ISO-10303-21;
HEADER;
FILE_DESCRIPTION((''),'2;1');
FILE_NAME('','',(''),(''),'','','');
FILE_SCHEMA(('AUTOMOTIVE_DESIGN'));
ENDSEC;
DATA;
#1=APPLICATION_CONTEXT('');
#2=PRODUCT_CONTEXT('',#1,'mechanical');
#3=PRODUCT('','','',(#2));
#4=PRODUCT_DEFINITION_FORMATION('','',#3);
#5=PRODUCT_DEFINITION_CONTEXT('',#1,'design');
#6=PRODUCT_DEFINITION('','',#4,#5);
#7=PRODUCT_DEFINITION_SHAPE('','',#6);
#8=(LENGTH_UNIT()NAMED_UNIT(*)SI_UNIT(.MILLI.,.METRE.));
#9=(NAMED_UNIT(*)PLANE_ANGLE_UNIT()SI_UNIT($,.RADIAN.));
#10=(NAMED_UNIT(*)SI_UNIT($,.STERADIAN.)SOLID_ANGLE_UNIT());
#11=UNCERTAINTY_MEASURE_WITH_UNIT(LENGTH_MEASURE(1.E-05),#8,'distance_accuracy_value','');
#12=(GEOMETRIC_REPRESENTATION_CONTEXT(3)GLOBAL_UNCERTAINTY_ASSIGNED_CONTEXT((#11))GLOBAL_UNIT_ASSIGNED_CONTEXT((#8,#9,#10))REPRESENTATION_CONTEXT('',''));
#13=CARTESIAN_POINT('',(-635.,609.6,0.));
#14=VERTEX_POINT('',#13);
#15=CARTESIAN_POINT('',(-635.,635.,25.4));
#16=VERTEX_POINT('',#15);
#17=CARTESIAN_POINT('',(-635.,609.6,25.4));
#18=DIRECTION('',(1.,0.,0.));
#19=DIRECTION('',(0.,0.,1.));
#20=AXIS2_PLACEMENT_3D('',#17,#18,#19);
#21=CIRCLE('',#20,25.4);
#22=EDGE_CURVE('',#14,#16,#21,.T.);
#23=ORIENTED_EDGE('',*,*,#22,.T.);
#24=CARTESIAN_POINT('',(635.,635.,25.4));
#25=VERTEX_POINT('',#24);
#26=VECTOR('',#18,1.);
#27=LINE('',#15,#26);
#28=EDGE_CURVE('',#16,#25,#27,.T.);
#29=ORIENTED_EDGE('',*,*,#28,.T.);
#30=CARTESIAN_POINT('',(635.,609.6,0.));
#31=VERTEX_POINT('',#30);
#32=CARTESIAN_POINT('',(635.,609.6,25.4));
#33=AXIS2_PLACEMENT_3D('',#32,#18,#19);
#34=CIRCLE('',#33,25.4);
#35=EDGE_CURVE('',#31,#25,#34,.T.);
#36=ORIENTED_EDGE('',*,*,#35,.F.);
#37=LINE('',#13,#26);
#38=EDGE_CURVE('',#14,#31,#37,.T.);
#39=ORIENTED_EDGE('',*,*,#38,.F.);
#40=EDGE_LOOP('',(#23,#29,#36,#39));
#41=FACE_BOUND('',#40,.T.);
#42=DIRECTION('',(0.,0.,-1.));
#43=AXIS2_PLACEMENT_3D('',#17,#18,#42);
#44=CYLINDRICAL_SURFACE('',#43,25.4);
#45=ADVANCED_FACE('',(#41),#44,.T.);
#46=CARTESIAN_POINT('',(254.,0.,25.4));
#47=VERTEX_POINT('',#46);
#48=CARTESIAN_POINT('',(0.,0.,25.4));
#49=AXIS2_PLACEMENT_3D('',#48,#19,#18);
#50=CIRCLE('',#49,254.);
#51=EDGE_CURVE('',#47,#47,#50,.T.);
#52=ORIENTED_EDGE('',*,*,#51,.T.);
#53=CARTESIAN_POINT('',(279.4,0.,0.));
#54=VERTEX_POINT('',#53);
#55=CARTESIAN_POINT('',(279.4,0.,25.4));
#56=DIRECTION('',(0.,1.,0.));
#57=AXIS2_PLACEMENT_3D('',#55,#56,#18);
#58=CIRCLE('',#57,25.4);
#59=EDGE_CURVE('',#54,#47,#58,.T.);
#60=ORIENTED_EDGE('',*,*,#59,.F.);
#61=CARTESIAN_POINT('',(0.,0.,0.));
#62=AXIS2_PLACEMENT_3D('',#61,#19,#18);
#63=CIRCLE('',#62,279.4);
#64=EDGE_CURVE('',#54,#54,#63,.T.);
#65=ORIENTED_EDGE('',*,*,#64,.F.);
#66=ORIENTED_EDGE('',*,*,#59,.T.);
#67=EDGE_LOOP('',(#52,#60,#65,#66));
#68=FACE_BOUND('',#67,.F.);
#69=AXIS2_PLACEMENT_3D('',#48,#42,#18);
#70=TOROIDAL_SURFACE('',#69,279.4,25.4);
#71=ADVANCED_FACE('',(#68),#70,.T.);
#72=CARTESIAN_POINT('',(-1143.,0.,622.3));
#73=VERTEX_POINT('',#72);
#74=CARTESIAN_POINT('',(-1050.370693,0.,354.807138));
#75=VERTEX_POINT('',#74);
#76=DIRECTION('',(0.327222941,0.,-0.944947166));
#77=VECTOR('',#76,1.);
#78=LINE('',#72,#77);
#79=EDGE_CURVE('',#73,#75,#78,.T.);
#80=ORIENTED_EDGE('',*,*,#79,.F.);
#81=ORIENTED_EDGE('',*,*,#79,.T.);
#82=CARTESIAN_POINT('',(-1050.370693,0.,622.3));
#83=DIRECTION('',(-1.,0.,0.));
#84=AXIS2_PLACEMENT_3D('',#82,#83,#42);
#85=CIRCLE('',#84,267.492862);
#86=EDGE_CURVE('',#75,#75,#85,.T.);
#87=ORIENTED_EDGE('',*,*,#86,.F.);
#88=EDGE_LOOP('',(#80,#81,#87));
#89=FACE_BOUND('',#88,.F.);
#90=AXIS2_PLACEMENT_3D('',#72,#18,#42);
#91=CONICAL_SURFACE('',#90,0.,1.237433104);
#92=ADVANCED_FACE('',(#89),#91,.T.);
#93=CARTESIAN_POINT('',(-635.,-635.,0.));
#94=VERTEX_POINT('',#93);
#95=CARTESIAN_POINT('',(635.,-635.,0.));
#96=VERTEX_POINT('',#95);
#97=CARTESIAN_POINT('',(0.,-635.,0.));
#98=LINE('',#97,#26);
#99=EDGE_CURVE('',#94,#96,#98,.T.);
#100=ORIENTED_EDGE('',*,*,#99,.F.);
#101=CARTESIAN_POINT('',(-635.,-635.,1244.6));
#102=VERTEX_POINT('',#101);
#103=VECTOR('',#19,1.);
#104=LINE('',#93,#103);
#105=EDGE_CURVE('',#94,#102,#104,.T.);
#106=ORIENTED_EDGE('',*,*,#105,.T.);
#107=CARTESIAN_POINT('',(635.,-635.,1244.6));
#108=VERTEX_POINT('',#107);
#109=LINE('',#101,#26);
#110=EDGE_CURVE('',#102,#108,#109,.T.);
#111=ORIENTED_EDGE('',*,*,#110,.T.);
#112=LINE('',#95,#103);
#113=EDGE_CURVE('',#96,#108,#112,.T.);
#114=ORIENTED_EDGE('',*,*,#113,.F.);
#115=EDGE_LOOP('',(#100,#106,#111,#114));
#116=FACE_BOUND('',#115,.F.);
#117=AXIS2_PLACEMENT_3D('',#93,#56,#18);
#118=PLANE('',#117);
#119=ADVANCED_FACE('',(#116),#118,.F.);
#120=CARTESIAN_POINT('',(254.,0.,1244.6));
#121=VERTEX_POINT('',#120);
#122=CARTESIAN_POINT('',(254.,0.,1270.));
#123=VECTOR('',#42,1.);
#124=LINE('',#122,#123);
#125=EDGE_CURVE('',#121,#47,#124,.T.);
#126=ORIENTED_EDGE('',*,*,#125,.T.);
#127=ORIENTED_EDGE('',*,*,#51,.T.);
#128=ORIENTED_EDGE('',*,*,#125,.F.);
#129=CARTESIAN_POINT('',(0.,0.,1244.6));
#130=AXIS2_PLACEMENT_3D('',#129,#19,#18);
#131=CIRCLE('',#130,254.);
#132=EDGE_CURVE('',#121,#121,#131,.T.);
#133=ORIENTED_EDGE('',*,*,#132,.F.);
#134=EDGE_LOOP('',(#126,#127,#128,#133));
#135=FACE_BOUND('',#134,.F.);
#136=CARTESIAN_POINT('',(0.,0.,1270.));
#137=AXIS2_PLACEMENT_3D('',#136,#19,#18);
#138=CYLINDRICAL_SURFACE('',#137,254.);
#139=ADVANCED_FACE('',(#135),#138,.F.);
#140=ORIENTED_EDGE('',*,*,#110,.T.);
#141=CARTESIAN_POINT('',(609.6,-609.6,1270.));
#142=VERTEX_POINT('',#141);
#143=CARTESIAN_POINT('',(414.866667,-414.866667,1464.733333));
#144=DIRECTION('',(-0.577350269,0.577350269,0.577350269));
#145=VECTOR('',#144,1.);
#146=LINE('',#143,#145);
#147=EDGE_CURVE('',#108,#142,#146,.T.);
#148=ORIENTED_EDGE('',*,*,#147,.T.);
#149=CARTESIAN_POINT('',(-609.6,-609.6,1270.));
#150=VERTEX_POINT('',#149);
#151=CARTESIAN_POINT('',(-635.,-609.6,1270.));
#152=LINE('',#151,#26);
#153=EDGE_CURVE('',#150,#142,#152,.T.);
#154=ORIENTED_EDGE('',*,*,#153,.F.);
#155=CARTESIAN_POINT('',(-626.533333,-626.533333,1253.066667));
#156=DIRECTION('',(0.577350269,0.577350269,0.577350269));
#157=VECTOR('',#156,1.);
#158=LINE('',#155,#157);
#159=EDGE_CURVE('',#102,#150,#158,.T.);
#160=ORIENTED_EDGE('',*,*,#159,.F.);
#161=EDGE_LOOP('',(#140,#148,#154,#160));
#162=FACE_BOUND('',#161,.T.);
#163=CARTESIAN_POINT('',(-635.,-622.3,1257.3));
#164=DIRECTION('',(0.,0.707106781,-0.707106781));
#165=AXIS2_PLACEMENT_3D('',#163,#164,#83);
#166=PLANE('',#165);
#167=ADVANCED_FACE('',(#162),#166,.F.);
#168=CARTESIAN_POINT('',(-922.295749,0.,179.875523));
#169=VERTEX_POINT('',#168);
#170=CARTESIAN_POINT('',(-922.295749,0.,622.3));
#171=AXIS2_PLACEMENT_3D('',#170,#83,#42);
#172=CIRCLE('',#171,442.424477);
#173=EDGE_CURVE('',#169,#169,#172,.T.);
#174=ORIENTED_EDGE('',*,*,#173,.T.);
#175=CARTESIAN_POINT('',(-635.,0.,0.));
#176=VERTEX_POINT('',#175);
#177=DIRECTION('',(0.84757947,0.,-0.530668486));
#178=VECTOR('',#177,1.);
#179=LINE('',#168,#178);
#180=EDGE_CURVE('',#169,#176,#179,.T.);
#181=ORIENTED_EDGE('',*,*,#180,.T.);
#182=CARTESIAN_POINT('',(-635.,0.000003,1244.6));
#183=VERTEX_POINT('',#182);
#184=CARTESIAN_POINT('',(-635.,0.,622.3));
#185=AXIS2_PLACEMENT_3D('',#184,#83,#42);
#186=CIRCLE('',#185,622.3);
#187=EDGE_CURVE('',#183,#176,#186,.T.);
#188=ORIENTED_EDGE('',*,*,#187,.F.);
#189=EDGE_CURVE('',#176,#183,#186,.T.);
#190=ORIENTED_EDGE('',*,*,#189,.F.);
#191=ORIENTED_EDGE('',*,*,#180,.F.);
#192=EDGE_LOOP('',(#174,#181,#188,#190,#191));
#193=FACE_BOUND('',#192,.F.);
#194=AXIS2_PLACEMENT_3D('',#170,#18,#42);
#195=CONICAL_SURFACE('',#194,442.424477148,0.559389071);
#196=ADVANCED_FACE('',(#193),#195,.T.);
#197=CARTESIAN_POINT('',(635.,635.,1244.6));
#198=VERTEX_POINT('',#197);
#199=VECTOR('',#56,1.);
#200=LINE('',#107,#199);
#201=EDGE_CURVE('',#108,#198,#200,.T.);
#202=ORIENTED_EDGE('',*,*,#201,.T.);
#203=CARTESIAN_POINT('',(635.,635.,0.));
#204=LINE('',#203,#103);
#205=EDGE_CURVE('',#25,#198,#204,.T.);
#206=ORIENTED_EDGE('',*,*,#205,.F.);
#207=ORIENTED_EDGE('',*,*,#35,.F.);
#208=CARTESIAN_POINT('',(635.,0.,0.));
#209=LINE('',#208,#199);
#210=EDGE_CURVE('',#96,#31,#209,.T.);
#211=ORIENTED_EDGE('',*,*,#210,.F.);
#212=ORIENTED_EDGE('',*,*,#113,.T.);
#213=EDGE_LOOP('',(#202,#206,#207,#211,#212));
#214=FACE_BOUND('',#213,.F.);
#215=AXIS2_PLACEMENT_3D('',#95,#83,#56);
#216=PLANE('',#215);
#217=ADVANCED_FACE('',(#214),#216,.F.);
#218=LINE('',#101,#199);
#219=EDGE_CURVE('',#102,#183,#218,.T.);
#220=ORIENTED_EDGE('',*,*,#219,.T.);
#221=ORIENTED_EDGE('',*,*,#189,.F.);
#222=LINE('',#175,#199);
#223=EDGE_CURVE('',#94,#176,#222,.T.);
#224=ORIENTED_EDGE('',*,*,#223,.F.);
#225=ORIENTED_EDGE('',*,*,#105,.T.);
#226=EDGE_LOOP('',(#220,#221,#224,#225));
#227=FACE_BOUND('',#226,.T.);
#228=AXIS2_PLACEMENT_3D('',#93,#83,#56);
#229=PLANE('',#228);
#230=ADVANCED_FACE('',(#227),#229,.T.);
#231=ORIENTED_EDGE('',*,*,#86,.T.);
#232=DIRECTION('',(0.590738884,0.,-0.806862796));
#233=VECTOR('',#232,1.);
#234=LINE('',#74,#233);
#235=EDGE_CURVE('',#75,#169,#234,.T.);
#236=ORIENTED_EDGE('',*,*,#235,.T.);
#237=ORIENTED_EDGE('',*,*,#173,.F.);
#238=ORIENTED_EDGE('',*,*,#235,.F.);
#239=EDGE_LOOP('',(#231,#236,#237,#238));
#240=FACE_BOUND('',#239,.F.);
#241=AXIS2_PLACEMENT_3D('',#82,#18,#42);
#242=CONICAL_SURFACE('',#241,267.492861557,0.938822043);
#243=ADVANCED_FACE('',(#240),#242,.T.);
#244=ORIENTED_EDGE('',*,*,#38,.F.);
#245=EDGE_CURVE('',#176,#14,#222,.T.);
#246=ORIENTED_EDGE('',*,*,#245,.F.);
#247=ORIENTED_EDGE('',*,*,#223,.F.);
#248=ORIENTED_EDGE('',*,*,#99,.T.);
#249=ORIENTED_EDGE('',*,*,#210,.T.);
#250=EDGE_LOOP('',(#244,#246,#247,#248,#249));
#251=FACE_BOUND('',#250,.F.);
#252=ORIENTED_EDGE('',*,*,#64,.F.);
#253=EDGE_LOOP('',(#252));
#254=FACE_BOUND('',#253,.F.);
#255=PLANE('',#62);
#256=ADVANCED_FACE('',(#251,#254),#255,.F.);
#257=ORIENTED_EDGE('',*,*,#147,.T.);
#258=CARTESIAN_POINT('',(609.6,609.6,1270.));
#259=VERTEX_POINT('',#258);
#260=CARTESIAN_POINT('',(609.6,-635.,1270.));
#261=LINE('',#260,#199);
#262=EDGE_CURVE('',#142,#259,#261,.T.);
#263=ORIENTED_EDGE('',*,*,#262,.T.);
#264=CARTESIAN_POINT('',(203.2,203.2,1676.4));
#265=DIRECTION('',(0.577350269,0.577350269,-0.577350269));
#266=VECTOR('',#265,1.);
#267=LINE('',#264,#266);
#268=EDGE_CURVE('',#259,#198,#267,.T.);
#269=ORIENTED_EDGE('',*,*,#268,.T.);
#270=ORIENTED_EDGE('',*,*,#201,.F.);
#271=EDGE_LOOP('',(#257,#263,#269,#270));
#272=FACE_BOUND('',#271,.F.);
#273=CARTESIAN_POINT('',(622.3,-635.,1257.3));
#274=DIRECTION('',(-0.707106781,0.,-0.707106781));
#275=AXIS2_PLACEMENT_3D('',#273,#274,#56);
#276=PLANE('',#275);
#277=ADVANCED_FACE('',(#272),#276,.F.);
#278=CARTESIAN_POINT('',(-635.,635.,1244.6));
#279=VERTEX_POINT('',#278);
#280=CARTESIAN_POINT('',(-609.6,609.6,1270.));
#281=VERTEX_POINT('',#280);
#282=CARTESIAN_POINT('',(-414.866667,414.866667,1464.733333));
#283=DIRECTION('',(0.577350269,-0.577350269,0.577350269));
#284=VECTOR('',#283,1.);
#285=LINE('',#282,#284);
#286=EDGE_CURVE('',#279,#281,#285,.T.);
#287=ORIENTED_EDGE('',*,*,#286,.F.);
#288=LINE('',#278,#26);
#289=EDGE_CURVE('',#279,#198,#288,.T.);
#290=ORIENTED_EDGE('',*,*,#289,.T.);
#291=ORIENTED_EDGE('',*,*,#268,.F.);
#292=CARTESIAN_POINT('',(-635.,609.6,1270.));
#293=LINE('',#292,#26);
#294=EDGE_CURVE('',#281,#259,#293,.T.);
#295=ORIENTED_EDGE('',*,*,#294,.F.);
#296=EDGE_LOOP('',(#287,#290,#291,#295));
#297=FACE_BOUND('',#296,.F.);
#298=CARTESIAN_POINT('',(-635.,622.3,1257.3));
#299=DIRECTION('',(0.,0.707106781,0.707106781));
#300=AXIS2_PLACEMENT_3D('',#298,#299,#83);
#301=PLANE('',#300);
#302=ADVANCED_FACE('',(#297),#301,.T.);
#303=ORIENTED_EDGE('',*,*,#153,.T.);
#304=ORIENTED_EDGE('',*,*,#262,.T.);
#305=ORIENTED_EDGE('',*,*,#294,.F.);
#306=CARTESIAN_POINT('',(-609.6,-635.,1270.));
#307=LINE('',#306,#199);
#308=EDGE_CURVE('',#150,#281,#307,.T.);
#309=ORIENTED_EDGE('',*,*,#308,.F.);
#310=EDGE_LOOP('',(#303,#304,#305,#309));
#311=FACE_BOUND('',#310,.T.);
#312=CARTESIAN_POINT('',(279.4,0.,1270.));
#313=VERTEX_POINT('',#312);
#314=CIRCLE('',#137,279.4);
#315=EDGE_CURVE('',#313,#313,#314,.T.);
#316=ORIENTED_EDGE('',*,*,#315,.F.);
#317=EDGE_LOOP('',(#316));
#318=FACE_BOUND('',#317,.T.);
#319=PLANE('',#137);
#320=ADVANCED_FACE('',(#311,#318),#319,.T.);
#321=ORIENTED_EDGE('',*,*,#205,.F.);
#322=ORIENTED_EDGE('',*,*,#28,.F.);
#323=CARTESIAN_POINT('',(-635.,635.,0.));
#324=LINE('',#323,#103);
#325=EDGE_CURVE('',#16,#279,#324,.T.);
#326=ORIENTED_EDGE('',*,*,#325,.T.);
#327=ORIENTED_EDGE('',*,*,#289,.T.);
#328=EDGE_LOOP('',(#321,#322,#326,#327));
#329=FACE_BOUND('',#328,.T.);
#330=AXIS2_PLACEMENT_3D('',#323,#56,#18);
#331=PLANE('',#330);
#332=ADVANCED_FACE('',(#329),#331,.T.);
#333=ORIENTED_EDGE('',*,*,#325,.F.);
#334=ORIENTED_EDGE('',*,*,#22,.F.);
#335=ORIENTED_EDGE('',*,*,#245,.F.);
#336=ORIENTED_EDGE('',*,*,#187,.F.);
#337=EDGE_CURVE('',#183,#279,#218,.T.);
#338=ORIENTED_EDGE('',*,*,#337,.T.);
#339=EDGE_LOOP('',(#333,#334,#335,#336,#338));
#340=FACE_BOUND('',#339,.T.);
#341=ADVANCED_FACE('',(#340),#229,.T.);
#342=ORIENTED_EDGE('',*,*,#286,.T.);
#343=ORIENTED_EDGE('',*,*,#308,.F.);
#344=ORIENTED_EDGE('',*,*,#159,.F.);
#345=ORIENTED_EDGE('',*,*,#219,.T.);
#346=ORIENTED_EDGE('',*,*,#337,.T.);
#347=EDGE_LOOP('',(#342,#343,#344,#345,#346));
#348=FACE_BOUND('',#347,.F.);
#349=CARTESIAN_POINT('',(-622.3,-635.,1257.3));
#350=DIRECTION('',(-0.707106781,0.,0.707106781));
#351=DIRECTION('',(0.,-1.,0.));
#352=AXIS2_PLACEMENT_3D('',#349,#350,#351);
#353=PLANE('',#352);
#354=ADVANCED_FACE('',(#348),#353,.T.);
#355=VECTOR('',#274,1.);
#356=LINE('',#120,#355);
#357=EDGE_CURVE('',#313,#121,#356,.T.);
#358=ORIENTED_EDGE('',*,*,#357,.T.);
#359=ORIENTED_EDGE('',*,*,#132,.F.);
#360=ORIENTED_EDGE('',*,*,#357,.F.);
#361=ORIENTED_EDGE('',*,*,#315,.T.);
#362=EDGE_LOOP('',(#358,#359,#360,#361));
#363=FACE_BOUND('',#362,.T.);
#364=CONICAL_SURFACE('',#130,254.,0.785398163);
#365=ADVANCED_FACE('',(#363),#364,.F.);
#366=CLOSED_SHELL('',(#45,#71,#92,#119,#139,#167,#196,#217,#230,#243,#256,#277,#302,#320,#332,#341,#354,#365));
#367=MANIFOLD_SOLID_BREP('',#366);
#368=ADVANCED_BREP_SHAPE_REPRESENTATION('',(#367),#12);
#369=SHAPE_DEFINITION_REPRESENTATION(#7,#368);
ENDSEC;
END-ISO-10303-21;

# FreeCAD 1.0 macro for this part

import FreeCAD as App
import Part
import Sketcher

V = App.Vector
Q = App.Units.Quantity


def edges_at(feature, points):
    """Names of the edges that pass closest to the given points."""
    edges = feature.Shape.Edges
    near = lambda p: min(range(len(edges)), key=lambda i: edges[i].distToShape(Part.Vertex(*p))[0])
    return sorted({f"Edge{near(p) + 1}" for p in points})

doc = App.newDocument("Part")
body = doc.addObject("PartDesign::Body", "Body")

# Sketch on XY plane
sketch1 = body.newObject("Sketcher::SketchObject", "Sketch")
sketch1.AttachmentSupport = (doc.getObject("XY_Plane"), [""])
sketch1.MapMode = "FlatFace"
sketch1.addGeometry(Part.LineSegment(V(-635, 635, 0), V(-635, -635, 0)), False)
sketch1.addGeometry(Part.LineSegment(V(-635, -635, 0), V(635, -635, 0)), False)
sketch1.addGeometry(Part.LineSegment(V(635, -635, 0), V(635, 635, 0)), False)
sketch1.addGeometry(Part.LineSegment(V(635, 635, 0), V(-635, 635, 0)), False)
sketch1.addConstraint(Sketcher.Constraint("Coincident", 0, 2, 1, 1))
sketch1.addConstraint(Sketcher.Constraint("Coincident", 1, 2, 2, 1))
sketch1.addConstraint(Sketcher.Constraint("Coincident", 2, 2, 3, 1))
sketch1.addConstraint(Sketcher.Constraint("Coincident", 3, 2, 0, 1))
sketch1.addConstraint(Sketcher.Constraint("Vertical", 0))
sketch1.addConstraint(Sketcher.Constraint("Horizontal", 1))
sketch1.addConstraint(Sketcher.Constraint("Vertical", 2))
sketch1.addConstraint(Sketcher.Constraint("Horizontal", 3))
sketch1.addConstraint(Sketcher.Constraint("Symmetric", 0, 2, 2, 2, -1, 1))
sketch1.addConstraint(Sketcher.Constraint("Equal", 3, 0))
sketch1.addConstraint(Sketcher.Constraint("DistanceX", 1, 1, 1, 2, Q("50 in")))
pad1 = body.newObject("PartDesign::Pad", "Pad")
pad1.Profile = sketch1
pad1.Length = Q("50 in")

# Sketch on XY plane
sketch2 = body.newObject("Sketcher::SketchObject", "Sketch001")
sketch2.AttachmentSupport = (doc.getObject("XY_Plane"), [""])
sketch2.MapMode = "FlatFace"
sketch2.AttachmentOffset = App.Placement(V(0, 0, 50 * 25.4), App.Rotation())
sketch2.addGeometry(Part.Circle(V(0, 0, 0), V(0, 0, 1), 254), False)
sketch2.addConstraint(Sketcher.Constraint("Coincident", 0, 3, -1, 1))
sketch2.addConstraint(Sketcher.Constraint("Diameter", 0, Q("20 in")))
pocket1 = body.newObject("PartDesign::Pocket", "Pocket")
pocket1.Profile = sketch2
pocket1.Type = "ThroughAll"
doc.recompute()

chamfer = body.newObject("PartDesign::Chamfer", "Chamfer")
chamfer.Base = (pocket1, edges_at(pocket1, [
    (0, -635, 1270),
    (-635, 0, 1270),
    (635, 0, 1270),
    (0, 635, 1270),
    (-254, 0, 1270),
]))
chamfer.Size = Q("1 in")
doc.recompute()

fillet = body.newObject("PartDesign::Fillet", "Fillet")
fillet.Base = (chamfer, edges_at(chamfer, [(-254, 0, 0)]))
fillet.Radius = Q("1 in")
doc.recompute()

fillet2 = body.newObject("PartDesign::Fillet", "Fillet001")
fillet2.Base = (fillet, edges_at(fillet, [(0, 635, 0)]))
fillet2.Radius = Q("1 in")

# Sketch on XZ plane
sketch3 = body.newObject("Sketcher::SketchObject", "Sketch002")
sketch3.AttachmentSupport = (doc.getObject("XZ_Plane"), [""])
sketch3.MapMode = "FlatFace"
sketch3.addGeometry(Part.LineSegment(V(-635, 0, 0), V(-635, 622.3, 0)), False)
sketch3.addGeometry(Part.LineSegment(V(-635, 622.3, 0), V(-1143, 622.3, 0)), False)
sketch3.addGeometry(Part.LineSegment(V(-1143, 622.3, 0), V(-1050.370693, 354.807138, 0)), False)
sketch3.addGeometry(Part.LineSegment(V(-1050.370693, 354.807138, 0), V(-922.295749, 179.875523, 0)), False)
sketch3.addGeometry(Part.LineSegment(V(-922.295749, 179.875523, 0), V(-635, 0, 0)), False)
sketch3.addGeometry(Part.LineSegment(V(-635, 622.3, 0), V(-1143, 622.3, 0)), True)  # axis
sketch3.addConstraint(Sketcher.Constraint("Coincident", 0, 2, 1, 1))
sketch3.addConstraint(Sketcher.Constraint("Coincident", 1, 2, 2, 1))
sketch3.addConstraint(Sketcher.Constraint("Coincident", 2, 2, 3, 1))
sketch3.addConstraint(Sketcher.Constraint("Coincident", 3, 2, 4, 1))
sketch3.addConstraint(Sketcher.Constraint("Coincident", 4, 2, 0, 1))
sketch3.addConstraint(Sketcher.Constraint("Vertical", 0))
sketch3.addConstraint(Sketcher.Constraint("Horizontal", 1))
sketch3.addConstraint(Sketcher.Constraint("Horizontal", 5))
sketch3.addConstraint(Sketcher.Constraint("Coincident", 5, 1, 0, 2))
sketch3.addConstraint(Sketcher.Constraint("PointOnObject", 4, 2, -1))
sketch3.addConstraint(Sketcher.Constraint("Equal", 1, 5))
sketch3.addConstraint(Sketcher.Constraint("DistanceX", 1, 2, 1, 1, Q("20 in")))
sketch3.addConstraint(Sketcher.Constraint("DistanceY", 0, 1, 0, 2, Q("24.5 in")))
sketch3.addConstraint(Sketcher.Constraint("DistanceX", 0, 2, -1, 1, Q("25 in")))
sketch3.addConstraint(Sketcher.Constraint("Distance", 3, 216.804662))
sketch3.addConstraint(Sketcher.Constraint("Distance", 4, 338.96025))
sketch3.addConstraint(Sketcher.Constraint("DistanceY", -1, 1, 2, 2, 354.807138))
sketch3.addConstraint(Sketcher.Constraint("DistanceX", 3, 2, -1, 1, 922.295749))
revolution = body.newObject("PartDesign::Revolution", "Revolution")
revolution.Profile = sketch3
revolution.ReferenceAxis = (sketch3, ["Axis0"])
revolution.Angle = 360

doc.recompute()
